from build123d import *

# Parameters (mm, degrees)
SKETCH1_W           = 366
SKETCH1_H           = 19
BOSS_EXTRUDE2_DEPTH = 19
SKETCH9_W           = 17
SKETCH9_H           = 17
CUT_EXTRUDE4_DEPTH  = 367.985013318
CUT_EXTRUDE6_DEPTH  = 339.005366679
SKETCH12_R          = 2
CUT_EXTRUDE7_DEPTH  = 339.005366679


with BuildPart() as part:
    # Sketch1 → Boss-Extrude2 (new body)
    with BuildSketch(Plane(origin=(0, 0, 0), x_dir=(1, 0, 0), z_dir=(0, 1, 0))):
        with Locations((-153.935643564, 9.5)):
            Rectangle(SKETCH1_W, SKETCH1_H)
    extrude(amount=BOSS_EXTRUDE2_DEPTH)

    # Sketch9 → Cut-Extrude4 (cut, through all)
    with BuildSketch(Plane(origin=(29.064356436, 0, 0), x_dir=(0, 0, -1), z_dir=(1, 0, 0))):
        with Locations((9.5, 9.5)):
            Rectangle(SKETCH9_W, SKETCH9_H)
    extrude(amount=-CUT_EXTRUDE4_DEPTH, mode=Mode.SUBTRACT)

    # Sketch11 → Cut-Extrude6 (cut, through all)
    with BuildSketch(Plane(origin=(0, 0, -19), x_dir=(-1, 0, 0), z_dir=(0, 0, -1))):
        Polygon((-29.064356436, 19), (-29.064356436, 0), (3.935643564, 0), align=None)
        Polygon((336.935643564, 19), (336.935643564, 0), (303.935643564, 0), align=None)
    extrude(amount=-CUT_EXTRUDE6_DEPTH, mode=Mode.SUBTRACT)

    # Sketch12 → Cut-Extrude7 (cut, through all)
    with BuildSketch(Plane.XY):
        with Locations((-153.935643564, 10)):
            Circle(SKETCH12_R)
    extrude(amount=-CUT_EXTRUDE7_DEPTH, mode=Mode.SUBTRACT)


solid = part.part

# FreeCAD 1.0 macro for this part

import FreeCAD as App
import Part
import Sketcher

V = App.Vector

doc = App.newDocument("Part")
body = doc.addObject("PartDesign::Body", "Body")

sketch1 = body.newObject("Sketcher::SketchObject", "Sketch")
sketch1.AttachmentSupport = (doc.getObject("XZ_Plane"), [""])
sketch1.MapMode = "FlatFace"
sketch1.addGeometry(Part.LineSegment(V(-337, -19, 0), V(-337, 0, 0)), False)
sketch1.addGeometry(Part.LineSegment(V(-337, 0, 0), V(29, 0, 0)), False)
sketch1.addGeometry(Part.LineSegment(V(29, 0, 0), V(29, -19, 0)), False)
sketch1.addGeometry(Part.LineSegment(V(29, -19, 0), V(-337, -19, 0)), False)
sketch1.addConstraint(Sketcher.Constraint("Coincident", 0, 2, 1, 1))
sketch1.addConstraint(Sketcher.Constraint("Coincident", 1, 2, 2, 1))
sketch1.addConstraint(Sketcher.Constraint("Coincident", 2, 2, 3, 1))
sketch1.addConstraint(Sketcher.Constraint("Coincident", 3, 2, 0, 1))
sketch1.addConstraint(Sketcher.Constraint("Vertical", 0))
sketch1.addConstraint(Sketcher.Constraint("Horizontal", 1))
sketch1.addConstraint(Sketcher.Constraint("Vertical", 2))
sketch1.addConstraint(Sketcher.Constraint("Horizontal", 3))
sketch1.addConstraint(Sketcher.Constraint("PointOnObject", 0, 2, -1))
sketch1.addConstraint(Sketcher.Constraint("DistanceX", 1, 1, 1, 2, 366.0))
sketch1.addConstraint(Sketcher.Constraint("DistanceY", 0, 1, 0, 2, 19.0))
sketch1.addConstraint(Sketcher.Constraint("DistanceX", 0, 2, -1, 1, 336.935644))
pad1 = body.newObject("PartDesign::Pad", "Pad")
pad1.Profile = sketch1
pad1.Length = 19
pad1.Reversed = True

sketch2 = body.newObject("Sketcher::SketchObject", "Sketch001")
sketch2.AttachmentSupport = (doc.getObject("YZ_Plane"), [""])
sketch2.MapMode = "FlatFace"
sketch2.AttachmentOffset = App.Placement(V(0, 0, 29.064356), App.Rotation())
sketch2.addGeometry(Part.LineSegment(V(18, -1, 0), V(1, -1, 0)), False)
sketch2.addGeometry(Part.LineSegment(V(1, -1, 0), V(1, -18, 0)), False)
sketch2.addGeometry(Part.LineSegment(V(1, -18, 0), V(18, -18, 0)), False)
sketch2.addGeometry(Part.LineSegment(V(18, -18, 0), V(18, -1, 0)), False)
sketch2.addConstraint(Sketcher.Constraint("Coincident", 0, 2, 1, 1))
sketch2.addConstraint(Sketcher.Constraint("Coincident", 1, 2, 2, 1))
sketch2.addConstraint(Sketcher.Constraint("Coincident", 2, 2, 3, 1))
sketch2.addConstraint(Sketcher.Constraint("Coincident", 3, 2, 0, 1))
sketch2.addConstraint(Sketcher.Constraint("Horizontal", 0))
sketch2.addConstraint(Sketcher.Constraint("Vertical", 1))
sketch2.addConstraint(Sketcher.Constraint("Horizontal", 2))
sketch2.addConstraint(Sketcher.Constraint("Vertical", 3))
sketch2.addConstraint(Sketcher.Constraint("Equal", 2, 1))
sketch2.addConstraint(Sketcher.Constraint("DistanceX", 0, 2, 0, 1, 17.0))
sketch2.addConstraint(Sketcher.Constraint("DistanceX", -1, 1, 0, 2, 1.0))
sketch2.addConstraint(Sketcher.Constraint("DistanceY", 0, 2, -1, 1, 1.0))
pocket1 = body.newObject("PartDesign::Pocket", "Pocket")
pocket1.Profile = sketch2
pocket1.Type = "ThroughAll"

sketch3 = body.newObject("Sketcher::SketchObject", "Sketch002")
sketch3.AttachmentSupport = (doc.getObject("XY_Plane"), [""])
sketch3.MapMode = "FlatFace"
sketch3.AttachmentOffset = App.Placement(V(0, 0, -19), App.Rotation())
sketch3.addGeometry(Part.LineSegment(V(29, 19, 0), V(29, 0, 0)), False)
sketch3.addGeometry(Part.LineSegment(V(29, 0, 0), V(-4, 0, 0)), False)
sketch3.addGeometry(Part.LineSegment(V(-4, 0, 0), V(29, 19, 0)), False)
sketch3.addGeometry(Part.LineSegment(V(-337, 0, 0), V(-337, 19, 0)), False)
sketch3.addGeometry(Part.LineSegment(V(-337, 19, 0), V(-304, 0, 0)), False)
sketch3.addGeometry(Part.LineSegment(V(-304, 0, 0), V(-337, 0, 0)), False)
sketch3.addConstraint(Sketcher.Constraint("Coincident", 0, 2, 1, 1))
sketch3.addConstraint(Sketcher.Constraint("Coincident", 1, 2, 2, 1))
sketch3.addConstraint(Sketcher.Constraint("Coincident", 2, 2, 0, 1))
sketch3.addConstraint(Sketcher.Constraint("Coincident", 3, 2, 4, 1))
sketch3.addConstraint(Sketcher.Constraint("Coincident", 4, 2, 5, 1))
sketch3.addConstraint(Sketcher.Constraint("Coincident", 5, 2, 3, 1))
sketch3.addConstraint(Sketcher.Constraint("Vertical", 0))
sketch3.addConstraint(Sketcher.Constraint("Horizontal", 1))
sketch3.addConstraint(Sketcher.Constraint("Vertical", 3))
sketch3.addConstraint(Sketcher.Constraint("Horizontal", 5))
sketch3.addConstraint(Sketcher.Constraint("PointOnObject", 0, 2, -1))
sketch3.addConstraint(Sketcher.Constraint("PointOnObject", 4, 2, -1))
sketch3.addConstraint(Sketcher.Constraint("Horizontal", 2, 2, 3, 2))
sketch3.addConstraint(Sketcher.Constraint("Equal", 1, 5))
sketch3.addConstraint(Sketcher.Constraint("DistanceX", 1, 2, 1, 1, 33.0))
sketch3.addConstraint(Sketcher.Constraint("DistanceY", 0, 2, 0, 1, 19.0))
sketch3.addConstraint(Sketcher.Constraint("DistanceX", 3, 2, 1, 2, 333.0))
sketch3.addConstraint(Sketcher.Constraint("DistanceX", -1, 1, 0, 2, 29.064356))
pocket2 = body.newObject("PartDesign::Pocket", "Pocket001")
pocket2.Profile = sketch3
pocket2.Type = "ThroughAll"
pocket2.Reversed = True

sketch4 = body.newObject("Sketcher::SketchObject", "Sketch003")
sketch4.AttachmentSupport = (doc.getObject("XY_Plane"), [""])
sketch4.MapMode = "FlatFace"
sketch4.addGeometry(Part.Circle(V(-153.9, 10, 0), V(0, 0, 1), 2), False)
sketch4.addConstraint(Sketcher.Constraint("Diameter", 0, 4.0))
sketch4.addConstraint(Sketcher.Constraint("DistanceY", -1, 1, 0, 3, 10.0))
sketch4.addConstraint(Sketcher.Constraint("DistanceX", 0, 3, -1, 1, 153.935644))
pocket3 = body.newObject("PartDesign::Pocket", "Pocket002")
pocket3.Profile = sketch4
pocket3.Type = "ThroughAll"

doc.recompute()
